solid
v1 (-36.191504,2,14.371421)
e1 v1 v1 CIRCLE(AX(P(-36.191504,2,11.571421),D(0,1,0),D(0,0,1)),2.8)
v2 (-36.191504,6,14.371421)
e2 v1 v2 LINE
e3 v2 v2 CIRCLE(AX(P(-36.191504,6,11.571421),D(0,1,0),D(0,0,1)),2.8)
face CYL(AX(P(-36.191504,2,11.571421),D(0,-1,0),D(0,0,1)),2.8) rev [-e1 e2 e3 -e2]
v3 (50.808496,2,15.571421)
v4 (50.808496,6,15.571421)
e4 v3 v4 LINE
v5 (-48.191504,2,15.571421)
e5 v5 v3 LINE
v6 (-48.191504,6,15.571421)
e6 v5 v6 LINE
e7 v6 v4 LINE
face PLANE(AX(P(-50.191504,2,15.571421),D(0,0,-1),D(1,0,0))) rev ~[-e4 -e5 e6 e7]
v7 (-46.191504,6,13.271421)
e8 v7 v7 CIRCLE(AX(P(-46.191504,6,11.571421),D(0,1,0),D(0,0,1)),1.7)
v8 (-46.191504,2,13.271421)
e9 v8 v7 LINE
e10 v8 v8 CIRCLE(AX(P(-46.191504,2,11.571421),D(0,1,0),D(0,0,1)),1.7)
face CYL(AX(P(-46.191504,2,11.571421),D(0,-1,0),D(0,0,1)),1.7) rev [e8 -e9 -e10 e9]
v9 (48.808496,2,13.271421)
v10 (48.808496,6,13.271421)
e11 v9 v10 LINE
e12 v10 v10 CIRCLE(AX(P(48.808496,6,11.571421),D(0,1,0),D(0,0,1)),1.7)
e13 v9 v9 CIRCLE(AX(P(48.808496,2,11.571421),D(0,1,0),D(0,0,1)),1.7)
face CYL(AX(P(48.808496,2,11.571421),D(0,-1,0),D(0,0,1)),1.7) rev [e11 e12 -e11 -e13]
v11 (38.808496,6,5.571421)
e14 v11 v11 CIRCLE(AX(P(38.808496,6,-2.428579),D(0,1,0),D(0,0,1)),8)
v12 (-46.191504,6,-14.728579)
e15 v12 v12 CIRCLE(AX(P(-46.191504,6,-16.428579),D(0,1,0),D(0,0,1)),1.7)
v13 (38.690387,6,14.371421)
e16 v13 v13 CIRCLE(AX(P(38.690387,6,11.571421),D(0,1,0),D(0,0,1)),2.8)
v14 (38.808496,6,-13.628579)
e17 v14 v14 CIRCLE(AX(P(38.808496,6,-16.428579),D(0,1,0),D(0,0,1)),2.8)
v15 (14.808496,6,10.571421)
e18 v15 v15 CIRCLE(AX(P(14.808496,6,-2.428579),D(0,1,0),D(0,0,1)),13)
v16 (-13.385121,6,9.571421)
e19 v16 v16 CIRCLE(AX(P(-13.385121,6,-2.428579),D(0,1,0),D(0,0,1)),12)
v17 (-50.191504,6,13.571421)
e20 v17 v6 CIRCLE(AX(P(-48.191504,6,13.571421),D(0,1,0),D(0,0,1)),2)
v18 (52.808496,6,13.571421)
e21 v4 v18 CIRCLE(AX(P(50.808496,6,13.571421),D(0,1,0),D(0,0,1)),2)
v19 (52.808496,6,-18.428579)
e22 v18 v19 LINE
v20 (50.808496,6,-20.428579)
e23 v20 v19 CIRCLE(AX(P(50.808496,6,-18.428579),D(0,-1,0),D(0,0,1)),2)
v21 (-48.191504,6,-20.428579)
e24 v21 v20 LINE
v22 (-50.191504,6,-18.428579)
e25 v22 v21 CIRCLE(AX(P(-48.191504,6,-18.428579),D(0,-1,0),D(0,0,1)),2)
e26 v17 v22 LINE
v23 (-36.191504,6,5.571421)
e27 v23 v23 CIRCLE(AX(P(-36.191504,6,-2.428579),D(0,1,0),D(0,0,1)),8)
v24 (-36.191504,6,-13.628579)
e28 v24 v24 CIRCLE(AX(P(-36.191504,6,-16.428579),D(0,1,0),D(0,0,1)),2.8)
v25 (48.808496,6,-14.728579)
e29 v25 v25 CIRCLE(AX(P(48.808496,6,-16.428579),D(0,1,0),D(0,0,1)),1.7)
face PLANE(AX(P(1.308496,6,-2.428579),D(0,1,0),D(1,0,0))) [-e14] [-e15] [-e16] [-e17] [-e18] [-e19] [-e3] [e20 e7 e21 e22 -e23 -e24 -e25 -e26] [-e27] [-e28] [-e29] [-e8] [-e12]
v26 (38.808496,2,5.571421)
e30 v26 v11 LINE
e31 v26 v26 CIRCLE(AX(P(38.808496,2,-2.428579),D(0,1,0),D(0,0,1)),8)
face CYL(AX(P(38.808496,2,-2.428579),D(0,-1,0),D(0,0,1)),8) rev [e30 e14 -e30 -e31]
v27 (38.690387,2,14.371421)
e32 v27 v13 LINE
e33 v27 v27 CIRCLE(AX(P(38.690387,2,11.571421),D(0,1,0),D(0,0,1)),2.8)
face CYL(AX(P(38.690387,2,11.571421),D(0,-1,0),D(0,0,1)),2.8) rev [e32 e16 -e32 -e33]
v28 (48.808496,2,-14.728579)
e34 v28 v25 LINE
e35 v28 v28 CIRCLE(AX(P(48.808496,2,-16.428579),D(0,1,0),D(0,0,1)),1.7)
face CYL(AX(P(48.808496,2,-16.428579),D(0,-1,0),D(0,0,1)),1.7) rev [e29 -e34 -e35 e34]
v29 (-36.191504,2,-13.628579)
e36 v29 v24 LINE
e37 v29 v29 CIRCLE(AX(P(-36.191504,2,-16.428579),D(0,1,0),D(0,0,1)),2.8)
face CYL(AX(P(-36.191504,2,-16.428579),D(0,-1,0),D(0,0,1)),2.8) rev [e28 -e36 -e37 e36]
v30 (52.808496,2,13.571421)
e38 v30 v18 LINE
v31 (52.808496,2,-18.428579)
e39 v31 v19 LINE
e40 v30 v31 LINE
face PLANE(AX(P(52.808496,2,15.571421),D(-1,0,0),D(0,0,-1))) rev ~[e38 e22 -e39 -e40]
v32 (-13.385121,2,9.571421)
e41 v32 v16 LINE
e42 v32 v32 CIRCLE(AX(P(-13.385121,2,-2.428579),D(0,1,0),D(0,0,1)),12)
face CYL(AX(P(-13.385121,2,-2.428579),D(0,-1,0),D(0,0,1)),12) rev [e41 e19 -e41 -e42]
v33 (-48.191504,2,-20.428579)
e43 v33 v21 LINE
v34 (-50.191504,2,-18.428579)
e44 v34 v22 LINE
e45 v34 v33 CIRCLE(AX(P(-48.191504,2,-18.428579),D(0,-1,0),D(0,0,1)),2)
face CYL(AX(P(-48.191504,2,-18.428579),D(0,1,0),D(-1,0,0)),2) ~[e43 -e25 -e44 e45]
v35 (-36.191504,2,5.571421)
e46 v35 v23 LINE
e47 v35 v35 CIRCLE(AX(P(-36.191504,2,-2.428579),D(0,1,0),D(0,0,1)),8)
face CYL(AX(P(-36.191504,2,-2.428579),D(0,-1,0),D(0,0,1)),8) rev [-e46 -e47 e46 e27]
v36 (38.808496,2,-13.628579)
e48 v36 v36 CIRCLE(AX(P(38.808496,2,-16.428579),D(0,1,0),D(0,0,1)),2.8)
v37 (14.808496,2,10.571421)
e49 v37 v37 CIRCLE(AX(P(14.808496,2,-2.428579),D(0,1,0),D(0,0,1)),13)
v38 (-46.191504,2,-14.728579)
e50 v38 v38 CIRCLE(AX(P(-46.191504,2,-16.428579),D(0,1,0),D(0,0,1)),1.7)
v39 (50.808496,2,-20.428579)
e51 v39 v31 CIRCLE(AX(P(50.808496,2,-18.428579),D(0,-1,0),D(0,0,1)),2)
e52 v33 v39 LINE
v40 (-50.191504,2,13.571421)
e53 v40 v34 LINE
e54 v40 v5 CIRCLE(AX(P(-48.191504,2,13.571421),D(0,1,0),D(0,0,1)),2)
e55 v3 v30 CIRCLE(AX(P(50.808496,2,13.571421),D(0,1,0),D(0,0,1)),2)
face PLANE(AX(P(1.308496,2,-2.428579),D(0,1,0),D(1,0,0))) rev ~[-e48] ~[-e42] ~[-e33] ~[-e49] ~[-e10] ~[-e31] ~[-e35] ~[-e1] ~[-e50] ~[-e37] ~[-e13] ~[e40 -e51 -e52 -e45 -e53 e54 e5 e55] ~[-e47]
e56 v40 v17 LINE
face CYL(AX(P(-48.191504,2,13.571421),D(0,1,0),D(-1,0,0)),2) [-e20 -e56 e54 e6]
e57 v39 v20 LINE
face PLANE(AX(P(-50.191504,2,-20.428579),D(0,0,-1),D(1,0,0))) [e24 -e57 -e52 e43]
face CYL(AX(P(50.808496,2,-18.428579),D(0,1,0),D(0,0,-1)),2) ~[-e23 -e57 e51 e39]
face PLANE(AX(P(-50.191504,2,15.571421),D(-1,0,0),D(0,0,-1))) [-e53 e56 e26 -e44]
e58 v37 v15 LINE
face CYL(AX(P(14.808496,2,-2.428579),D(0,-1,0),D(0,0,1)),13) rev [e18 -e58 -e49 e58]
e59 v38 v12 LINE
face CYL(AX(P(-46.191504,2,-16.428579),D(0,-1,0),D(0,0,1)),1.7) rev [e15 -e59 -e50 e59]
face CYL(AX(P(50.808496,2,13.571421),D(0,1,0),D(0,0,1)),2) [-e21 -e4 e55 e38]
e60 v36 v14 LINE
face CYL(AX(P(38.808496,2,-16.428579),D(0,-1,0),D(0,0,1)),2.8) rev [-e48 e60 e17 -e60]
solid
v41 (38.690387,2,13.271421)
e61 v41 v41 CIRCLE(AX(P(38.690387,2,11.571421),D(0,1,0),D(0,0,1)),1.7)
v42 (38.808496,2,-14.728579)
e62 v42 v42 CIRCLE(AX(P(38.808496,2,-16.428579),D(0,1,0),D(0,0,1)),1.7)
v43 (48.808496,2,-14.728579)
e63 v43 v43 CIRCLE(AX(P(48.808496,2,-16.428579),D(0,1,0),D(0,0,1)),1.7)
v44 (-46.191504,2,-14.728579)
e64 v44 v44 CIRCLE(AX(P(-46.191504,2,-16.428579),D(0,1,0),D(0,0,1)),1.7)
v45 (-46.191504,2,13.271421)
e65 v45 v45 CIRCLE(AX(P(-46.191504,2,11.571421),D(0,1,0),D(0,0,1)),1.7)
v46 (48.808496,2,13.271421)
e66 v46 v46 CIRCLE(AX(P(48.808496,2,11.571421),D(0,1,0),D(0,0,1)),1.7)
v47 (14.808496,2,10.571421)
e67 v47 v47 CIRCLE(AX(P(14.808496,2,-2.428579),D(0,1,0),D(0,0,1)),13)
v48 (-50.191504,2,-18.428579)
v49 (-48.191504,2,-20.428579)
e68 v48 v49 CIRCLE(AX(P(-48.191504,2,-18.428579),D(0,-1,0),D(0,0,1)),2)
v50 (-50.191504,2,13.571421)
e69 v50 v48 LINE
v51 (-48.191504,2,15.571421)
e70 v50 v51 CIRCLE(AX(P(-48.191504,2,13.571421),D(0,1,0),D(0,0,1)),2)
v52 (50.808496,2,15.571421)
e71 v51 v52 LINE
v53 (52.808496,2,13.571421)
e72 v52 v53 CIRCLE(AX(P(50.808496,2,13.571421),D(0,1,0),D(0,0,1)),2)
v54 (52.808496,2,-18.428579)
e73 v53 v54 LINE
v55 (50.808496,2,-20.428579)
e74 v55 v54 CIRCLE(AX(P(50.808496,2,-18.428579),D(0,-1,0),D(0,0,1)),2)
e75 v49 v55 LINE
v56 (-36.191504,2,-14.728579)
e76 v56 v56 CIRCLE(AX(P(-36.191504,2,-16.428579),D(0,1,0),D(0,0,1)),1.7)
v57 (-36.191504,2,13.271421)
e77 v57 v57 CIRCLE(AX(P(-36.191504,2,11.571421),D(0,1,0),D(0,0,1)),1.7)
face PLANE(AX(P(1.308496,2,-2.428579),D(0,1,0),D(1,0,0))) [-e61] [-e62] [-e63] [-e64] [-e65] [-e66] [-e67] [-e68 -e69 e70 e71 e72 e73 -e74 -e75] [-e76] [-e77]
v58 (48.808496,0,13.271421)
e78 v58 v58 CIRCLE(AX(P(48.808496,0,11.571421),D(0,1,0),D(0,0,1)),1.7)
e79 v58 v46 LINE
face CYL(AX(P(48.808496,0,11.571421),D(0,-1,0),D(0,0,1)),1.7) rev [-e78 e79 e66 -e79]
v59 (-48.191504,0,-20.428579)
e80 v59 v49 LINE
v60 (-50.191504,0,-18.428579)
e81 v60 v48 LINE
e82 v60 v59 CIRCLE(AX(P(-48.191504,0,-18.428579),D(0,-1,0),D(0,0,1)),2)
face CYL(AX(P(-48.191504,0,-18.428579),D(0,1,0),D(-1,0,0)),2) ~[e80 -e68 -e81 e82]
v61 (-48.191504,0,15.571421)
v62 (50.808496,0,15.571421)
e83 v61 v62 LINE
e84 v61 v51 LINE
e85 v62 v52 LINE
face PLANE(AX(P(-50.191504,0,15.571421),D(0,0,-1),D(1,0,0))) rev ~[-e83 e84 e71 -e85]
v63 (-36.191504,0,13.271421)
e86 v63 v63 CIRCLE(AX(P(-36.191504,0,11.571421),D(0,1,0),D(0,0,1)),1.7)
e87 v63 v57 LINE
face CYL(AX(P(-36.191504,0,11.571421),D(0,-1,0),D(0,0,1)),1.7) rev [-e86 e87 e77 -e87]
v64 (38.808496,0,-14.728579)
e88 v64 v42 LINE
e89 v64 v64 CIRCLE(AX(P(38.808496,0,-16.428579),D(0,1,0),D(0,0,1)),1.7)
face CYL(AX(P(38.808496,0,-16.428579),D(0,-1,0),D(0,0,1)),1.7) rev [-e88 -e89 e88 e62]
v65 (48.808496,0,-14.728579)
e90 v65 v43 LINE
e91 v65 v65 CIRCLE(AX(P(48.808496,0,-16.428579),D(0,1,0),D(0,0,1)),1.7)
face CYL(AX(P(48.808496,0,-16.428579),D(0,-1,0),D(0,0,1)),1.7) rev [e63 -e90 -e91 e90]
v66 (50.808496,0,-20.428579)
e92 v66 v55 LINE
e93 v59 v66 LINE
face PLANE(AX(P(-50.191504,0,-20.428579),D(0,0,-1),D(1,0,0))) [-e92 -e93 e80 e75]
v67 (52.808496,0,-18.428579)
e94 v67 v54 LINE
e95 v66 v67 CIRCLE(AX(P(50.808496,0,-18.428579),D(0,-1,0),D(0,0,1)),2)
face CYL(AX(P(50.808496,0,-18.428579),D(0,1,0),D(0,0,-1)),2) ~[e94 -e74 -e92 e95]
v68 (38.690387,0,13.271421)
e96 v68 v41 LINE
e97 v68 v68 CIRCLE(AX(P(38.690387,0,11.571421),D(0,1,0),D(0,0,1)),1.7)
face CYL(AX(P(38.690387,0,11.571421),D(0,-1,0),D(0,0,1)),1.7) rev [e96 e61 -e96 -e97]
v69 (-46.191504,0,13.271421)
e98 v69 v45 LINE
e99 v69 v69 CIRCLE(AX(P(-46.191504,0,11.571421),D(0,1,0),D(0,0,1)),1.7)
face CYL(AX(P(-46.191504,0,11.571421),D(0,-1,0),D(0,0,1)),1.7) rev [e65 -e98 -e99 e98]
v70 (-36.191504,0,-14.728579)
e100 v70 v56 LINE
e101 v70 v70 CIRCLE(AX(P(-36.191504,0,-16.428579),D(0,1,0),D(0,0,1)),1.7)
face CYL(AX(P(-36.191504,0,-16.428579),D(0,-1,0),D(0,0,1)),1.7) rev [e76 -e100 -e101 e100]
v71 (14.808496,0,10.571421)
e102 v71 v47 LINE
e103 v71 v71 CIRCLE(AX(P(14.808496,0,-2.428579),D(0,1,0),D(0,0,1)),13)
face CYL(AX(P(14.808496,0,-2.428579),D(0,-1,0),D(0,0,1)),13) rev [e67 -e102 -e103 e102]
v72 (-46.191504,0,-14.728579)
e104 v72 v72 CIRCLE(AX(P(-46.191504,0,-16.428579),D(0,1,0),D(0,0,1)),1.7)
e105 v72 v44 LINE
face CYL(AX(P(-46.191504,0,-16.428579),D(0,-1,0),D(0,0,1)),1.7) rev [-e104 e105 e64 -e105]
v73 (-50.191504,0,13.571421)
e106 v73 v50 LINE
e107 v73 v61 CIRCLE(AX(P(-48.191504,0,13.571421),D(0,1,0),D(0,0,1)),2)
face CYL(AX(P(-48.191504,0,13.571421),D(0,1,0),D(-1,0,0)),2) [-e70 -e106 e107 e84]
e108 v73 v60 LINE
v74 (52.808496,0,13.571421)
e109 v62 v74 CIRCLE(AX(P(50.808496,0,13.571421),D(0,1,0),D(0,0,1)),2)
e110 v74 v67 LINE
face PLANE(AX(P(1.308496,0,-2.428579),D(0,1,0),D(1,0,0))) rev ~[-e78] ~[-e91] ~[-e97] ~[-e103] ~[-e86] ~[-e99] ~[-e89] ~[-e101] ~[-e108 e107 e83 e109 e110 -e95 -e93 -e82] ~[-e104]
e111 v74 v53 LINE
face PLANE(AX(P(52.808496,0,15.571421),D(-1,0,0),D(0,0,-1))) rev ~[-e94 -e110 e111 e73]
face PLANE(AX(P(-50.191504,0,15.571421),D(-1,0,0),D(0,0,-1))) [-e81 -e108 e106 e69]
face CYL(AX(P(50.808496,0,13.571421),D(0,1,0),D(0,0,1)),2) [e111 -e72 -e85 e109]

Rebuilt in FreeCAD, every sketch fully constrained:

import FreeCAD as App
import Part
import Sketcher
from FreeCAD import Vector


def edges_at(feature, points):
    """Names of the edges that pass closest to the given points."""
    edges = feature.Shape.Edges
    near = lambda p: min(range(len(edges)), key=lambda i: edges[i].distToShape(Part.Vertex(*p))[0])
    return sorted({f"Edge{near(p) + 1}" for p in points})

doc = App.newDocument("Part")
params = doc.addObject("Spreadsheet::Sheet", "Params")
for row, (alias, value) in enumerate([
    ("sketch1_diameter", "26 mm"),
    ("sketch1_diameter2", "3.4 mm"),
    ("sketch1_width", "103 mm"),
    ("sketch1_height", "36 mm"),
    ("pad1_length", "2 mm"),
    ("fillet_radius", "2 mm"),
    ("sketch2_diameter", "16 mm"),
    ("sketch2_diameter2", "24 mm"),
    ("sketch2_diameter3", "26 mm"),
    ("sketch2_diameter4", "3.4 mm"),
    ("sketch2_diameter5", "5.6 mm"),
    ("pad2_length", "4 mm"),
    ("fillet2_radius", "2 mm"),
], start=1):
    params.set(f"A{row}", alias)
    params.set(f"B{row}", "=" + value)
    params.setAlias(f"B{row}", alias)

body = doc.addObject("PartDesign::Body", "Body")

sketch1 = body.newObject("Sketcher::SketchObject", "Sketch")
sketch1.AttachmentSupport = (doc.getObject("XZ_Plane"), [""])
sketch1.MapMode = "FlatFace"
sketch1.addGeometry([
    Part.LineSegment(Vector(-50.191504, -20.428579, 0), Vector(-50.191504, 15.571421, 0)),
    Part.LineSegment(Vector(-50.191504, 15.571421, 0), Vector(52.808496, 15.571421, 0)),
    Part.LineSegment(Vector(52.808496, 15.571421, 0), Vector(52.808496, -20.428579, 0)),
    Part.LineSegment(Vector(52.808496, -20.428579, 0), Vector(-50.191504, -20.428579, 0)),
    Part.Circle(Vector(-46.191504, 11.571421, 0), Vector(0, 0, 1), 1.7),
    Part.Circle(Vector(-36.191504, 11.571421, 0), Vector(0, 0, 1), 1.7),
    Part.Circle(Vector(38.690387, 11.571421, 0), Vector(0, 0, 1), 1.7),
    Part.Circle(Vector(48.808496, 11.571421, 0), Vector(0, 0, 1), 1.7),
    Part.Circle(Vector(-46.191504, -16.428579, 0), Vector(0, 0, 1), 1.7),
    Part.Circle(Vector(-36.191504, -16.428579, 0), Vector(0, 0, 1), 1.7),
    Part.Circle(Vector(14.808496, -2.428579, 0), Vector(0, 0, 1), 13),
    Part.Circle(Vector(38.808496, -16.428579, 0), Vector(0, 0, 1), 1.7),
    Part.Circle(Vector(48.808496, -16.428579, 0), Vector(0, 0, 1), 1.7),
], False)
sketch1.addConstraint([
    Sketcher.Constraint("Coincident", 0, 2, 1, 1),
    Sketcher.Constraint("Coincident", 1, 2, 2, 1),
    Sketcher.Constraint("Coincident", 2, 2, 3, 1),
    Sketcher.Constraint("Coincident", 3, 2, 0, 1),
    Sketcher.Constraint("Vertical", 0),
    Sketcher.Constraint("Horizontal", 1),
    Sketcher.Constraint("Vertical", 2),
    Sketcher.Constraint("Horizontal", 3),
    Sketcher.Constraint("Equal", 4, 5),
    Sketcher.Constraint("Equal", 5, 6),
    Sketcher.Constraint("Equal", 6, 7),
    Sketcher.Constraint("Equal", 7, 8),
    Sketcher.Constraint("Equal", 8, 9),
    Sketcher.Constraint("Equal", 9, 11),
    Sketcher.Constraint("Equal", 11, 12),
    Sketcher.Constraint("Horizontal", 4, 3, 5, 3),
    Sketcher.Constraint("Horizontal", 5, 3, 6, 3),
    Sketcher.Constraint("Horizontal", 6, 3, 7, 3),
    Sketcher.Constraint("Horizontal", 8, 3, 9, 3),
    Sketcher.Constraint("Horizontal", 9, 3, 11, 3),
    Sketcher.Constraint("Horizontal", 11, 3, 12, 3),
    Sketcher.Constraint("Vertical", 4, 3, 8, 3),
    Sketcher.Constraint("Vertical", 5, 3, 9, 3),
    Sketcher.Constraint("Vertical", 7, 3, 12, 3),
    Sketcher.Constraint("Diameter", 10, 26.0),
    Sketcher.Constraint("Diameter", 4, 3.4),
    Sketcher.Constraint("DistanceX", 1, 1, 1, 2, 103.0),
    Sketcher.Constraint("DistanceY", 0, 1, 0, 2, 36.0),
    Sketcher.Constraint("DistanceX", 4, 3, 5, 3, 10.0),
    Sketcher.Constraint("DistanceX", 5, 3, 7, 3, 85.0),
    Sketcher.Constraint("DistanceY", 8, 3, 4, 3, 28.0),
    Sketcher.Constraint("DistanceY", 10, 3, 6, 3, 14.0),
    Sketcher.Constraint("DistanceX", 10, 3, 7, 3, 34.0),
    Sketcher.Constraint("DistanceX", 10, 3, 11, 3, 24.0),
    Sketcher.Constraint("DistanceX", 0, 2, 4, 3, 4.0),
    Sketcher.Constraint("DistanceY", 4, 3, 0, 2, 4.0),
    Sketcher.Constraint("DistanceY", -1, 1, 4, 3, 11.571421),
    Sketcher.Constraint("DistanceX", 5, 3, 6, 3, 74.881891),
    Sketcher.Constraint("DistanceX", 4, 3, -1, 1, 46.191504),
])
sketch1.setExpression("Constraints[24]", "Params.sketch1_diameter")
sketch1.setExpression("Constraints[25]", "Params.sketch1_diameter2")
sketch1.setExpression("Constraints[26]", "Params.sketch1_width")
sketch1.setExpression("Constraints[27]", "Params.sketch1_height")
pad1 = body.newObject("PartDesign::Pad", "Pad")
pad1.Profile = sketch1
pad1.setExpression("Length", "Params.pad1_length")
pad1.Reversed = True
doc.recompute()

fillet = body.newObject("PartDesign::Fillet", "Fillet")
fillet.Base = (pad1, edges_at(pad1, [
    (-50.192, 1, -20.429),
    (52.808, 1, -20.429),
    (52.808, 1, 15.571),
    (-50.192, 1, 15.571),
]))
fillet.setExpression("Radius", "Params.fillet_radius")
body2 = doc.addObject("PartDesign::Body", "Body001")

sketch2 = body2.newObject("Sketcher::SketchObject", "Sketch001")
sketch2.AttachmentSupport = (doc.getObject("XZ_Plane001"), [""])
sketch2.MapMode = "FlatFace"
sketch2.AttachmentOffset = App.Placement(Vector(0, 0, -2), App.Rotation())
sketch2.addGeometry([
    Part.LineSegment(Vector(-50.191504, -20.428579, 0), Vector(-50.191504, 15.571421, 0)),
    Part.LineSegment(Vector(-50.191504, 15.571421, 0), Vector(52.808496, 15.571421, 0)),
    Part.LineSegment(Vector(52.808496, 15.571421, 0), Vector(52.808496, -20.428579, 0)),
    Part.LineSegment(Vector(52.808496, -20.428579, 0), Vector(-50.191504, -20.428579, 0)),
    Part.Circle(Vector(-46.191504, 11.571421, 0), Vector(0, 0, 1), 1.7),
    Part.Circle(Vector(-36.191504, 11.571421, 0), Vector(0, 0, 1), 2.8),
    Part.Circle(Vector(38.690387, 11.571421, 0), Vector(0, 0, 1), 2.8),
    Part.Circle(Vector(48.808496, 11.571421, 0), Vector(0, 0, 1), 1.7),
    Part.Circle(Vector(-36.191504, -2.428579, 0), Vector(0, 0, 1), 8),
    Part.Circle(Vector(-13.385121, -2.428579, 0), Vector(0, 0, 1), 12),
    Part.Circle(Vector(-46.191504, -16.428579, 0), Vector(0, 0, 1), 1.7),
    Part.Circle(Vector(-36.191504, -16.428579, 0), Vector(0, 0, 1), 2.8),
    Part.Circle(Vector(14.808496, -2.428579, 0), Vector(0, 0, 1), 13),
    Part.Circle(Vector(38.808496, -2.428579, 0), Vector(0, 0, 1), 8),
    Part.Circle(Vector(38.808496, -16.428579, 0), Vector(0, 0, 1), 2.8),
    Part.Circle(Vector(48.808496, -16.428579, 0), Vector(0, 0, 1), 1.7),
], False)
sketch2.addConstraint([
    Sketcher.Constraint("Coincident", 0, 2, 1, 1),
    Sketcher.Constraint("Coincident", 1, 2, 2, 1),
    Sketcher.Constraint("Coincident", 2, 2, 3, 1),
    Sketcher.Constraint("Coincident", 3, 2, 0, 1),
    Sketcher.Constraint("Vertical", 0),
    Sketcher.Constraint("Horizontal", 1),
    Sketcher.Constraint("Vertical", 2),
    Sketcher.Constraint("Horizontal", 3),
    Sketcher.Constraint("Equal", 5, 6),
    Sketcher.Constraint("Equal", 4, 7),
    Sketcher.Constraint("Equal", 7, 10),
    Sketcher.Constraint("Equal", 6, 11),
    Sketcher.Constraint("Equal", 8, 13),
    Sketcher.Constraint("Equal", 11, 14),
    Sketcher.Constraint("Equal", 10, 15),
    Sketcher.Constraint("Horizontal", 4, 3, 5, 3),
    Sketcher.Constraint("Horizontal", 5, 3, 6, 3),
    Sketcher.Constraint("Horizontal", 6, 3, 7, 3),
    Sketcher.Constraint("Horizontal", 8, 3, 9, 3),
    Sketcher.Constraint("Horizontal", 10, 3, 11, 3),
    Sketcher.Constraint("Horizontal", 9, 3, 12, 3),
    Sketcher.Constraint("Horizontal", 12, 3, 13, 3),
    Sketcher.Constraint("Horizontal", 11, 3, 14, 3),
    Sketcher.Constraint("Horizontal", 14, 3, 15, 3),
    Sketcher.Constraint("Vertical", 5, 3, 8, 3),
    Sketcher.Constraint("Vertical", 4, 3, 10, 3),
    Sketcher.Constraint("Vertical", 8, 3, 11, 3),
    Sketcher.Constraint("Vertical", 13, 3, 14, 3),
    Sketcher.Constraint("Vertical", 7, 3, 15, 3),
    Sketcher.Constraint("Diameter", 8, 16.0),
    Sketcher.Constraint("Diameter", 9, 24.0),
    Sketcher.Constraint("Diameter", 12, 26.0),
    Sketcher.Constraint("Diameter", 4, 3.4),
    Sketcher.Constraint("Diameter", 5, 5.6),
    Sketcher.Constraint("DistanceX", 1, 1, 1, 2, 103.0),
    Sketcher.Constraint("DistanceY", 0, 1, 0, 2, 36.0),
    Sketcher.Constraint("DistanceX", 4, 3, 5, 3, 10.0),
    Sketcher.Constraint("DistanceX", 5, 3, 7, 3, 85.0),
    Sketcher.Constraint("DistanceY", 8, 3, 5, 3, 14.0),
    Sketcher.Constraint("DistanceY", 10, 3, 8, 3, 14.0),
    Sketcher.Constraint("DistanceX", 12, 3, 7, 3, 34.0),
    Sketcher.Constraint("DistanceX", 13, 3, 7, 3, 10.0),
    Sketcher.Constraint("DistanceX", 0, 2, 4, 3, 4.0),
    Sketcher.Constraint("DistanceY", 4, 3, 0, 2, 4.0),
    Sketcher.Constraint("DistanceY", -1, 1, 4, 3, 11.571421),
    Sketcher.Constraint("DistanceX", 9, 3, -1, 1, 13.385121),
    Sketcher.Constraint("DistanceX", 5, 3, 6, 3, 74.881891),
    Sketcher.Constraint("DistanceX", 9, 3, 6, 3, 52.075508),
])
sketch2.setExpression("Constraints[29]", "Params.sketch2_diameter")
sketch2.setExpression("Constraints[30]", "Params.sketch2_diameter2")
sketch2.setExpression("Constraints[31]", "Params.sketch2_diameter3")
sketch2.setExpression("Constraints[32]", "Params.sketch2_diameter4")
sketch2.setExpression("Constraints[33]", "Params.sketch2_diameter5")
pad2 = body2.newObject("PartDesign::Pad", "Pad001")
pad2.Profile = sketch2
pad2.setExpression("Length", "Params.pad2_length")
pad2.Reversed = True
doc.recompute()

fillet2 = body2.newObject("PartDesign::Fillet", "Fillet001")
fillet2.Base = (pad2, edges_at(pad2, [
    (-50.192, 4, -20.429),
    (52.808, 4, -20.429),
    (52.808, 4, 15.571),
    (-50.192, 4, 15.571),
]))
fillet2.setExpression("Radius", "Params.fillet2_radius")

doc.recompute()
